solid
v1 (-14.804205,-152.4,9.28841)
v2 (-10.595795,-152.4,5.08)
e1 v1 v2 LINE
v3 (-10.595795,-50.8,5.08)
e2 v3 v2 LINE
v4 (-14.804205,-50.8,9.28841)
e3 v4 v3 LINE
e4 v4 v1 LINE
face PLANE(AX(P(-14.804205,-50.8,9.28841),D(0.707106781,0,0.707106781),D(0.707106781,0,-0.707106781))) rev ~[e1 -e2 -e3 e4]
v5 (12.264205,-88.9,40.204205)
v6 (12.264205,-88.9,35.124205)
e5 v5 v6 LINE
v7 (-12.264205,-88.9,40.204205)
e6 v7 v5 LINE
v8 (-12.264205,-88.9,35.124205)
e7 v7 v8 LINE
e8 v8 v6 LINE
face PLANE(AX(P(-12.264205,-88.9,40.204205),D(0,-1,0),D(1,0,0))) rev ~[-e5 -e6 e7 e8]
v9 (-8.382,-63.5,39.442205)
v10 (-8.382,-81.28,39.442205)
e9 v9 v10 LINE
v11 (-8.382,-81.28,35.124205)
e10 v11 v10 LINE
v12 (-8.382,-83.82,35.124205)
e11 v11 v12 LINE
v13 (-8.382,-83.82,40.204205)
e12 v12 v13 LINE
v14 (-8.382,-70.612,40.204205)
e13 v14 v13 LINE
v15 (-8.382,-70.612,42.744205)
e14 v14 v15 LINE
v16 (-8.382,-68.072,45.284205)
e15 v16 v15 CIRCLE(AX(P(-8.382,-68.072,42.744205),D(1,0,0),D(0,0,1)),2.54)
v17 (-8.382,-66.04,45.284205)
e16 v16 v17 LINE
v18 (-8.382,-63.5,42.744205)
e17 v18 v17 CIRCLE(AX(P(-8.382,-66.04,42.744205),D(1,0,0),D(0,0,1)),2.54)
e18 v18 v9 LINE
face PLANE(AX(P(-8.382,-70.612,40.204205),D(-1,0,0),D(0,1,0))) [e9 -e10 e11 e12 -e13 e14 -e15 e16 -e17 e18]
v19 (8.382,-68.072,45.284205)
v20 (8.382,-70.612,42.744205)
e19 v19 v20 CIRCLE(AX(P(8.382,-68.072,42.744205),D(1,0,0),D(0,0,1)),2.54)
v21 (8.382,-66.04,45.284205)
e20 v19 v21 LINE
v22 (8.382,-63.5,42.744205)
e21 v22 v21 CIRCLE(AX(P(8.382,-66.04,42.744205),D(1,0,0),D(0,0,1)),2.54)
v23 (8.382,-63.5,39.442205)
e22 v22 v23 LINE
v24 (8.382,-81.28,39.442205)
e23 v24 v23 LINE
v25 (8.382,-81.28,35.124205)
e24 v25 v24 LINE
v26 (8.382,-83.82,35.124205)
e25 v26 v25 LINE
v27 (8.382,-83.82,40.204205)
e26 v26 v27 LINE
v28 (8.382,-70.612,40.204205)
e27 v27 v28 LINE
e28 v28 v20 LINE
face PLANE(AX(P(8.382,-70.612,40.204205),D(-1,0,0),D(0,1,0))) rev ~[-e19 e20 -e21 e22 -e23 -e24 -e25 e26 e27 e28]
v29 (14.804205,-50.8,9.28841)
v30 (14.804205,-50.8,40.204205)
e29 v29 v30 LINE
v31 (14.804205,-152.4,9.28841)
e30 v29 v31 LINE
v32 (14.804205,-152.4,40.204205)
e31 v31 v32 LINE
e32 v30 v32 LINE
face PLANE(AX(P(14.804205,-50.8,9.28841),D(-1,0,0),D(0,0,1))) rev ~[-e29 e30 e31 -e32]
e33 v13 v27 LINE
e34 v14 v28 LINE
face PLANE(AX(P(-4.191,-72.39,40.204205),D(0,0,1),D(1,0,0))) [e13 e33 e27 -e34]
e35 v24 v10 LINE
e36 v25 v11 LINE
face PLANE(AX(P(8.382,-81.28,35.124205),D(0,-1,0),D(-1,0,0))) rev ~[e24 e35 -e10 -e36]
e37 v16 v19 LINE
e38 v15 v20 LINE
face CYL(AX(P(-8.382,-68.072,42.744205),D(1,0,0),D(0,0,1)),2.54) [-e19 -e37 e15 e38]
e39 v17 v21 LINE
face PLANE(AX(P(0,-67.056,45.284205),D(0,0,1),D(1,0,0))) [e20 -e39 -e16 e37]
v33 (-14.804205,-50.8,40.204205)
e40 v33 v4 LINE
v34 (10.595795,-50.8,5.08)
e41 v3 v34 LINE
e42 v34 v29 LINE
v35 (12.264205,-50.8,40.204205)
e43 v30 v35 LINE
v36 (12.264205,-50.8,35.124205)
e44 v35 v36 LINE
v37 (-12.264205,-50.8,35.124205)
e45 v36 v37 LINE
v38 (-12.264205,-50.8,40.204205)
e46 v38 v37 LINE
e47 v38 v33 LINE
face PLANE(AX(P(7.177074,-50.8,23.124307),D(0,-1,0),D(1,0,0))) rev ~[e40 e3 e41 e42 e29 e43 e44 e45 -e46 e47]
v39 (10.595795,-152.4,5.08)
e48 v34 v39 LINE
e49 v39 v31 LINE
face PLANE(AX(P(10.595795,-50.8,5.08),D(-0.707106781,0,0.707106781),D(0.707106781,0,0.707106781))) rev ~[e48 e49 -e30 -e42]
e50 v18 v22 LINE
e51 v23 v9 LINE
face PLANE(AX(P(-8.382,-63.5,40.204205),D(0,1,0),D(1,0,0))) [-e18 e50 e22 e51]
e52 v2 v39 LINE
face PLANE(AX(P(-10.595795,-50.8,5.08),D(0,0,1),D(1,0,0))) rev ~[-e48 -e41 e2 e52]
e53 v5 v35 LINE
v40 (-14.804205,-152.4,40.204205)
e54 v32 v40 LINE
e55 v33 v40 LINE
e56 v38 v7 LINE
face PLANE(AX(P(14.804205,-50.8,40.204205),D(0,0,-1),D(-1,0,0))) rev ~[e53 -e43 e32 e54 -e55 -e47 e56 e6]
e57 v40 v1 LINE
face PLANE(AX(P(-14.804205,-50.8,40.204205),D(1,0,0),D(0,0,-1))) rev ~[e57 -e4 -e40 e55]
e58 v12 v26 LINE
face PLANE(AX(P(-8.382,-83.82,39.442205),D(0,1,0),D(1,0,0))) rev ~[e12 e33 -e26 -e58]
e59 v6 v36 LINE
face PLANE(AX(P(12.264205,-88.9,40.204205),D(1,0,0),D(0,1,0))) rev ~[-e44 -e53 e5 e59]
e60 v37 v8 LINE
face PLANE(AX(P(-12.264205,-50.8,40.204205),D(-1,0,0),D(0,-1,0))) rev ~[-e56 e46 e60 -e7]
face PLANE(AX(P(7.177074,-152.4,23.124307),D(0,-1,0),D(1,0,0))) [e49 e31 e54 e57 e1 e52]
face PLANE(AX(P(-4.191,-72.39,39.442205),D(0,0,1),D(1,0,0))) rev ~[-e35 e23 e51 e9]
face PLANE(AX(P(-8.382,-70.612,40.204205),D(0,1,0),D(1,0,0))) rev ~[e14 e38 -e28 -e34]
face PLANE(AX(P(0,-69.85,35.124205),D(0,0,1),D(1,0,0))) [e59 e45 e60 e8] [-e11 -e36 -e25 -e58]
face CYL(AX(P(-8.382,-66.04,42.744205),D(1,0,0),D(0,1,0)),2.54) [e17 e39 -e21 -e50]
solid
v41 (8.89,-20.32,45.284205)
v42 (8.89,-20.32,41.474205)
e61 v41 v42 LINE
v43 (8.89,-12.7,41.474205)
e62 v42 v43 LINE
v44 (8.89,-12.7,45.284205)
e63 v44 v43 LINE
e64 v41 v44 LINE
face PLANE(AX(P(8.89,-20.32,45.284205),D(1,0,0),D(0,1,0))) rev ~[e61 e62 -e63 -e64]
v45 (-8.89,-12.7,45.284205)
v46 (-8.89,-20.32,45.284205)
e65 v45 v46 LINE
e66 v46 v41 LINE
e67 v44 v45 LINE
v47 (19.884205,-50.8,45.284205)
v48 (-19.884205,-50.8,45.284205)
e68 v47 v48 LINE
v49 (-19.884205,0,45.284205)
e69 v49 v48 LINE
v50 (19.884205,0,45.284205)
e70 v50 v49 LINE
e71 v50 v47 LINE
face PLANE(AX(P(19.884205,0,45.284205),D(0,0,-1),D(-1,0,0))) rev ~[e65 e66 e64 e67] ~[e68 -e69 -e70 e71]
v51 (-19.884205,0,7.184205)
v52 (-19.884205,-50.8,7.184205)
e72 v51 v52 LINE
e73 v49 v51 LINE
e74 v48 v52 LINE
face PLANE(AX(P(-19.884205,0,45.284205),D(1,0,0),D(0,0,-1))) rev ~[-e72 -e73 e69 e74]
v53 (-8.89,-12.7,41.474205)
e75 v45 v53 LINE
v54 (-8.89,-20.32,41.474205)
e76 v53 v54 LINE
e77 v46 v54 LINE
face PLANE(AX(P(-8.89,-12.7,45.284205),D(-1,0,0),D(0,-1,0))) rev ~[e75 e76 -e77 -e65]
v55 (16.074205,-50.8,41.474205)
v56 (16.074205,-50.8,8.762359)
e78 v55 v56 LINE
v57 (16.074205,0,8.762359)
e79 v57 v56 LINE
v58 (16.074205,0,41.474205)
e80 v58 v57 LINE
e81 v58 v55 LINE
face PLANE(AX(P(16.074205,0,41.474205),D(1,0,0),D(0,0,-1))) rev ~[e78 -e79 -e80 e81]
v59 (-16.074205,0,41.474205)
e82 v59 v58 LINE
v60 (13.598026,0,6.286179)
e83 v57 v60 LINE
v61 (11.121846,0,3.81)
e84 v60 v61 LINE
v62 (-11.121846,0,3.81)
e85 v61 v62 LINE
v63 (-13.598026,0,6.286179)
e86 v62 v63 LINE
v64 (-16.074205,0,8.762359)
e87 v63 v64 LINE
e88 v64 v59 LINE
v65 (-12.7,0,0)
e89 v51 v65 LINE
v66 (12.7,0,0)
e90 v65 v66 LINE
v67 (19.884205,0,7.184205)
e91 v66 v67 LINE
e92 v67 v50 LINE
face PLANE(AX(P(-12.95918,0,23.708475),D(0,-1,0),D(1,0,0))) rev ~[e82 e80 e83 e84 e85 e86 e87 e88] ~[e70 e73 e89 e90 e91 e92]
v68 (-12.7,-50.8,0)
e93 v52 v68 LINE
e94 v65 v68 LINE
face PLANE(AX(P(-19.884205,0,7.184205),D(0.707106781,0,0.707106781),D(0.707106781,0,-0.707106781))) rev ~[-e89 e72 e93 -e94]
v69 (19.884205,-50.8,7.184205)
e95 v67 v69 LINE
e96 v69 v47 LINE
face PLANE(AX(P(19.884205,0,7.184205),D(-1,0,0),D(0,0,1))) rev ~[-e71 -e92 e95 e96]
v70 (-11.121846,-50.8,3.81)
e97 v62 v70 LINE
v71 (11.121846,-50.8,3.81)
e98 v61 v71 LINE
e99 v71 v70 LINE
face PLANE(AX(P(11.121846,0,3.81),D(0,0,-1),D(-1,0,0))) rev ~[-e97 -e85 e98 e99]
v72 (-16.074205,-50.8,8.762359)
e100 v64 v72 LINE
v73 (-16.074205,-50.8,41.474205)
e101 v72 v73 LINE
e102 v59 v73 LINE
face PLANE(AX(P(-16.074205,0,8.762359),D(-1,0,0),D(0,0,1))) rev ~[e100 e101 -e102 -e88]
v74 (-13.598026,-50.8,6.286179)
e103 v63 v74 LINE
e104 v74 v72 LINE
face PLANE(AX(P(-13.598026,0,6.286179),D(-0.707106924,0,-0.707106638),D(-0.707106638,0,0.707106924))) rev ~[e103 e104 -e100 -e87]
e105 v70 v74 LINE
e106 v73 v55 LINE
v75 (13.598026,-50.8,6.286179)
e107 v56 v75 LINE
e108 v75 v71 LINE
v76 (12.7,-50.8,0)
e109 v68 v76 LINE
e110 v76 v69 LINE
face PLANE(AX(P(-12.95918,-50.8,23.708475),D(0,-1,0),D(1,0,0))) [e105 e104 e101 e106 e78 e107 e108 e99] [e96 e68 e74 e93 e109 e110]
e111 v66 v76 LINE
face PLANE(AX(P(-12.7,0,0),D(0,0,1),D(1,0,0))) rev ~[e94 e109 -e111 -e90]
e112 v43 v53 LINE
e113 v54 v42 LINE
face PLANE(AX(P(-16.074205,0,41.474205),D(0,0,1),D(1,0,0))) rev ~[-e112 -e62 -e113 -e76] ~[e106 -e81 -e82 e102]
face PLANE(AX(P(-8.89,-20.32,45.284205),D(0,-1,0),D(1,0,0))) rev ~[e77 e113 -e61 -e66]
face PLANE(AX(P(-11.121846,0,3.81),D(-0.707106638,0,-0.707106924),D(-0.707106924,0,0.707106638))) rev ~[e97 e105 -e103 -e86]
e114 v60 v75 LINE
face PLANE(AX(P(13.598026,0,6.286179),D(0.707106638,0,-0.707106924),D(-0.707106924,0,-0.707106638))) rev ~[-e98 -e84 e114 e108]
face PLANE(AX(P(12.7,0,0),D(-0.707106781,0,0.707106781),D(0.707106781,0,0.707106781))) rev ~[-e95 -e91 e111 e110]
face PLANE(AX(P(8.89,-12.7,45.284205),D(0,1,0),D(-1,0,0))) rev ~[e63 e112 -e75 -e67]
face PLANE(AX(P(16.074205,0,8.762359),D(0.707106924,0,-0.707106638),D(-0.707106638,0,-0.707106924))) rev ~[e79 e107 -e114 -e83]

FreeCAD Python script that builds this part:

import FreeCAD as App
import Part
import Sketcher
Q = App.Units.Quantity


def edges_at(feature, points):
    """Names of the edges that pass closest to the given points."""
    edges = feature.Shape.Edges
    near = lambda p: min(range(len(edges)), key=lambda i: edges[i].distToShape(Part.Vertex(*p))[0])
    return sorted({f"Edge{near(p) + 1}" for p in points})


def add_polygon(sketch, points):
    """Adds a closed chain of lines whose ends are joined by coincident constraints."""
    first, n = sketch.GeometryCount, len(points)
    for a, b in zip(points, points[1:] + points[:1]):
        sketch.addGeometry(Part.LineSegment(App.Vector(*a, 0), App.Vector(*b, 0)), False)
    for i in range(n):
        sketch.addConstraint(Sketcher.Constraint("Coincident", first + i, 2, first + (i + 1) % n, 1))

doc = App.newDocument("Part")
body = doc.addObject("PartDesign::Body", "Body")

# Sketch on XZ plane
sketch1 = doc.addObject("Sketcher::SketchObject", "Sketch")
body.addObject(sketch1)
sketch1.AttachmentSupport = (doc.XZ_Plane, [""])
sketch1.MapMode = "FlatFace"
add_polygon(sketch1, [(-12.7, 0), (12.7, 0), (19.884205, 7.184205), (19.884205, 45.284205), (-19.884205, 45.284205), (-19.884205, 7.184205)])  # lines 0-5
add_polygon(sketch1, [(-11.121846, 3.81), (-13.598026, 6.286179), (-16.074205, 8.762359), (-16.074205, 41.474205), (16.074205, 41.474205), (16.074205, 8.762359), (13.598026, 6.286179), (11.121846, 3.81)])  # lines 6-13
sketch1.addConstraint([
    Sketcher.Constraint("Horizontal", 0),
    Sketcher.Constraint("Vertical", 2),
    Sketcher.Constraint("Horizontal", 3),
    Sketcher.Constraint("Vertical", 4),
    Sketcher.Constraint("Vertical", 8),
    Sketcher.Constraint("Horizontal", 9),
    Sketcher.Constraint("Vertical", 10),
    Sketcher.Constraint("Horizontal", 13),
    Sketcher.Constraint("Symmetric", 0, 2, 5, 2, -1, 1),
    Sketcher.Constraint("Symmetric", 1, 2, 4, 2, -2),
    Sketcher.Constraint("Symmetric", 7, 2, 10, 2, -2),
    Sketcher.Constraint("Symmetric", 6, 2, 11, 2, -2),
    Sketcher.Constraint("Perpendicular", 1, 5),
    Sketcher.Constraint("Parallel", 5, 6),
    Sketcher.Constraint("Parallel", 6, 7),
    Sketcher.Constraint("Parallel", 11, 12),
    Sketcher.Constraint("Equal", 6, 7),
    Sketcher.Constraint("DistanceX", 0, 1, 0, 2, Q("1 in")),
    Sketcher.Constraint("DistanceY", 2, 1, 2, 2, Q("1.5 in")),
    Sketcher.Constraint("Distance", 1, Q("0.4 in")),
    Sketcher.Constraint("DistanceY", -1, 1, 12, 2, Q("0.15 in")),
    Sketcher.Constraint("DistanceX", 4, 2, 7, 2, Q("0.15 in")),
    Sketcher.Constraint("DistanceY", 8, 2, 3, 2, Q("0.15 in")),
    Sketcher.Constraint("DistanceX", 13, 2, 13, 1, Q("22.243692 mm")),
])
pad1 = doc.addObject("PartDesign::Pad", "Pad")
body.addObject(pad1)
pad1.Profile = sketch1
pad1.Length = Q("2 in")

# Sketch on XY plane
sketch2 = doc.addObject("Sketcher::SketchObject", "Sketch001")
body.addObject(sketch2)
sketch2.AttachmentSupport = (doc.XY_Plane, [""])
sketch2.MapMode = "FlatFace"
sketch2.AttachmentOffset = App.Placement(App.Vector(0, 0, 45.284205), App.Rotation())
add_polygon(sketch2, [(8.89, -12.7), (-8.89, -12.7), (-8.89, -20.32), (8.89, -20.32)])  # lines 0-3
sketch2.addConstraint([
    Sketcher.Constraint("Horizontal", 0),
    Sketcher.Constraint("Vertical", 1),
    Sketcher.Constraint("Horizontal", 2),
    Sketcher.Constraint("Vertical", 3),
    Sketcher.Constraint("DistanceX", 0, 2, 0, 1, Q("0.7 in")),
    Sketcher.Constraint("DistanceY", 1, 2, 1, 1, Q("0.3 in")),
    Sketcher.Constraint("DistanceY", 0, 2, -1, 1, Q("0.5 in")),
    Sketcher.Constraint("DistanceX", 0, 2, -1, 1, Q("0.35 in")),
])
pocket1 = doc.addObject("PartDesign::Pocket", "Pocket")
body.addObject(pocket1)
pocket1.Profile = sketch2
pocket1.Length = Q("1 in")
body2 = doc.addObject("PartDesign::Body", "Body001")

# Sketch on XZ plane
sketch3 = doc.addObject("Sketcher::SketchObject", "Sketch002")
body2.addObject(sketch3)
sketch3.AttachmentSupport = (doc.getObject("XZ_Plane001"), [""])
sketch3.MapMode = "FlatFace"
sketch3.AttachmentOffset = App.Placement(App.Vector(0, 0, 2 * 25.4), App.Rotation())
add_polygon(sketch3, [(10.595795, 5.08), (14.804205, 9.28841), (14.804205, 40.204205), (-14.804205, 40.204205), (-14.804205, 9.28841), (-10.595795, 5.08)])  # lines 0-5
sketch3.addConstraint([
    Sketcher.Constraint("Vertical", 1),
    Sketcher.Constraint("Horizontal", 2),
    Sketcher.Constraint("Vertical", 3),
    Sketcher.Constraint("Horizontal", 5),
    Sketcher.Constraint("Symmetric", 0, 2, 3, 2, -2),
    Sketcher.Constraint("Perpendicular", 0, 4),
    Sketcher.Constraint("Equal", 0, 4),
    Sketcher.Constraint("DistanceX", 4, 2, 0, 2, Q("1 in")),
    Sketcher.Constraint("DistanceY", -1, 1, 4, 2, Q("0.2 in")),
    Sketcher.Constraint("DistanceX", 2, 2, 2, 1, Q("29.60841 mm")),
    Sketcher.Constraint("DistanceY", 1, 1, 1, 2, Q("30.915795 mm")),
])
pad2 = doc.addObject("PartDesign::Pad", "Pad001")
body2.addObject(pad2)
pad2.Profile = sketch3
pad2.Length = Q("4 in")

# Sketch on XY plane
sketch4 = doc.addObject("Sketcher::SketchObject", "Sketch003")
body2.addObject(sketch4)
sketch4.AttachmentSupport = (doc.getObject("XY_Plane001"), [""])
sketch4.MapMode = "FlatFace"
sketch4.AttachmentOffset = App.Placement(App.Vector(0, 0, 40.204205), App.Rotation())
add_polygon(sketch4, [(12.264205, -50.8), (-12.264205, -50.8), (-12.264205, -88.9), (12.264205, -88.9)])  # lines 0-3
sketch4.addConstraint([
    Sketcher.Constraint("Horizontal", 0),
    Sketcher.Constraint("Vertical", 1),
    Sketcher.Constraint("Horizontal", 2),
    Sketcher.Constraint("Vertical", 3),
    Sketcher.Constraint("DistanceY", 1, 2, 1, 1, Q("1.5 in")),
    Sketcher.Constraint("DistanceY", 0, 2, -1, 1, Q("2 in")),
    Sketcher.Constraint("DistanceX", 0, 2, 0, 1, Q("24.52841 mm")),
    Sketcher.Constraint("DistanceX", 0, 2, -1, 1, Q("12.264205 mm")),
])
pocket2 = doc.addObject("PartDesign::Pocket", "Pocket001")
body2.addObject(pocket2)
pocket2.Profile = sketch4
pocket2.Length = Q("0.2 in")

# Sketch on XY plane
sketch5 = doc.addObject("Sketcher::SketchObject", "Sketch004")
body2.addObject(sketch5)
sketch5.AttachmentSupport = (doc.getObject("XY_Plane001"), [""])
sketch5.MapMode = "FlatFace"
sketch5.AttachmentOffset = App.Placement(App.Vector(0, 0, 35.124205), App.Rotation())
add_polygon(sketch5, [(-8.382, -83.82), (8.382, -83.82), (8.382, -81.28), (-8.382, -81.28)])  # lines 0-3
sketch5.addConstraint([
    Sketcher.Constraint("Horizontal", 0),
    Sketcher.Constraint("Vertical", 1),
    Sketcher.Constraint("Horizontal", 2),
    Sketcher.Constraint("Vertical", 3),
    Sketcher.Constraint("DistanceY", 1, 1, 1, 2, Q("0.1 in")),
    Sketcher.Constraint("DistanceX", 0, 1, 0, 2, Q("0.66 in")),
    Sketcher.Constraint("DistanceY", 0, 2, -1, 1, Q("3.3 in")),
    Sketcher.Constraint("DistanceX", -1, 1, 0, 2, Q("0.33 in")),
])
pad3 = doc.addObject("PartDesign::Pad", "Pad002")
body2.addObject(pad3)
pad3.Profile = sketch5
pad3.Length = Q("0.17 in")

# Sketch on XY plane
sketch6 = doc.addObject("Sketcher::SketchObject", "Sketch005")
body2.addObject(sketch6)
sketch6.AttachmentSupport = (doc.getObject("XY_Plane001"), [""])
sketch6.MapMode = "FlatFace"
sketch6.AttachmentOffset = App.Placement(App.Vector(0, 0, 39.442205), App.Rotation())
add_polygon(sketch6, [(-8.382, -63.5), (-8.382, -83.82), (8.382, -83.82), (8.382, -63.5)])  # lines 0-3
sketch6.addConstraint([
    Sketcher.Constraint("Vertical", 0),
    Sketcher.Constraint("Horizontal", 1),
    Sketcher.Constraint("Vertical", 2),
    Sketcher.Constraint("Horizontal", 3),
    Sketcher.Constraint("DistanceY", 0, 2, 0, 1, Q("0.8 in")),
    Sketcher.Constraint("DistanceX", 1, 1, 1, 2, Q("0.66 in")),
    Sketcher.Constraint("DistanceY", 0, 2, -1, 1, Q("3.3 in")),
    Sketcher.Constraint("DistanceX", 0, 2, -1, 1, Q("0.33 in")),
])
pad4 = doc.addObject("PartDesign::Pad", "Pad003")
body2.addObject(pad4)
pad4.Profile = sketch6
pad4.Length = Q("0.03 in")

# Sketch on XY plane
sketch7 = doc.addObject("Sketcher::SketchObject", "Sketch006")
body2.addObject(sketch7)
sketch7.AttachmentSupport = (doc.getObject("XY_Plane001"), [""])
sketch7.MapMode = "FlatFace"
sketch7.AttachmentOffset = App.Placement(App.Vector(0, 0, 40.204205), App.Rotation())
add_polygon(sketch7, [(-8.382, -63.5), (-8.382, -70.612), (8.382, -70.612), (8.382, -63.5)])  # lines 0-3
sketch7.addConstraint([
    Sketcher.Constraint("Vertical", 0),
    Sketcher.Constraint("Horizontal", 1),
    Sketcher.Constraint("Vertical", 2),
    Sketcher.Constraint("Horizontal", 3),
    Sketcher.Constraint("DistanceX", 1, 1, 1, 2, Q("0.66 in")),
    Sketcher.Constraint("DistanceY", 0, 2, 0, 1, Q("0.28 in")),
    Sketcher.Constraint("DistanceY", 2, 2, -1, 1, Q("2.5 in")),
    Sketcher.Constraint("DistanceX", 0, 2, -1, 1, Q("0.33 in")),
])
pad5 = doc.addObject("PartDesign::Pad", "Pad004")
body2.addObject(pad5)
pad5.Profile = sketch7
pad5.Length = Q("0.2 in")
doc.recompute()

fillet = doc.addObject("PartDesign::Fillet", "Fillet")
body2.addObject(fillet)
fillet.Base = (pad5, edges_at(pad5, [(0, -63.5, 45.284), (0, -70.612, 45.284)]))
fillet.Radius = Q("0.1 in")

doc.recompute()
